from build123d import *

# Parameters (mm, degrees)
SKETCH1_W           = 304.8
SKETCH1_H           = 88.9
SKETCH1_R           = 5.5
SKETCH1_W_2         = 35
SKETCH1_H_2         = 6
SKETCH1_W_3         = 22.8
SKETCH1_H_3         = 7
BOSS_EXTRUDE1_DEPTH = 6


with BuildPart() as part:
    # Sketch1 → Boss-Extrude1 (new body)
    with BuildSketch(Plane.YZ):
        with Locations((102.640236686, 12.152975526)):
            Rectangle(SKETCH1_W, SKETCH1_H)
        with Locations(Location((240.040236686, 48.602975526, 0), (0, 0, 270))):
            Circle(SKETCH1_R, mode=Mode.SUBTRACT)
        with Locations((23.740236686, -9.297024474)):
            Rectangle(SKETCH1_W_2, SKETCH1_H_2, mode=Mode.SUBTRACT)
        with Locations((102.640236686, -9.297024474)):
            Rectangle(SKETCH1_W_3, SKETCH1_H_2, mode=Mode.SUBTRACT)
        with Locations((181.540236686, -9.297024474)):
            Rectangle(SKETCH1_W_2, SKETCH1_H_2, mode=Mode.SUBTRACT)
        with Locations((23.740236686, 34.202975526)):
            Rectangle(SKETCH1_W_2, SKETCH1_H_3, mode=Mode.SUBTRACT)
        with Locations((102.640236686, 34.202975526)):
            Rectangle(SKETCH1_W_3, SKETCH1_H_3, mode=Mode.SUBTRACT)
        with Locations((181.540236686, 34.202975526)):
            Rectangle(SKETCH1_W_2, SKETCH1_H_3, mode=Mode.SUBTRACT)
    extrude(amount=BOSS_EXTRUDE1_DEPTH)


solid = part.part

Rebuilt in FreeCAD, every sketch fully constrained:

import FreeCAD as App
import Part
import Sketcher
from FreeCAD import Vector
Q = App.Units.Quantity

doc = App.newDocument("Part")
body = doc.addObject("PartDesign::Body", "Body")

sketch1 = body.newObject("Sketcher::SketchObject", "Sketch")
sketch1.AttachmentSupport = (doc.getObject("YZ_Plane"), [""])
sketch1.MapMode = "FlatFace"
sketch1.addGeometry(Part.LineSegment(Vector(-49.759763, 56.602976, 0), Vector(-49.759763, -32.297024, 0)), False)
sketch1.addGeometry(Part.LineSegment(Vector(-49.759763, -32.297024, 0), Vector(255.040237, -32.297024, 0)), False)
sketch1.addGeometry(Part.LineSegment(Vector(255.040237, -32.297024, 0), Vector(255.040237, 56.602976, 0)), False)
sketch1.addGeometry(Part.LineSegment(Vector(255.040237, 56.602976, 0), Vector(-49.759763, 56.602976, 0)), False)
sketch1.addGeometry(Part.LineSegment(Vector(41.240237, -12.297024, 0), Vector(6.240237, -12.297024, 0)), False)
sketch1.addGeometry(Part.LineSegment(Vector(6.240237, -12.297024, 0), Vector(6.240237, -6.297024, 0)), False)
sketch1.addGeometry(Part.LineSegment(Vector(6.240237, -6.297024, 0), Vector(41.240237, -6.297024, 0)), False)
sketch1.addGeometry(Part.LineSegment(Vector(41.240237, -6.297024, 0), Vector(41.240237, -12.297024, 0)), False)
sketch1.addGeometry(Part.LineSegment(Vector(114.040237, -12.297024, 0), Vector(91.240237, -12.297024, 0)), False)
sketch1.addGeometry(Part.LineSegment(Vector(91.240237, -12.297024, 0), Vector(91.240237, -6.297024, 0)), False)
sketch1.addGeometry(Part.LineSegment(Vector(91.240237, -6.297024, 0), Vector(114.040237, -6.297024, 0)), False)
sketch1.addGeometry(Part.LineSegment(Vector(114.040237, -6.297024, 0), Vector(114.040237, -12.297024, 0)), False)
sketch1.addGeometry(Part.LineSegment(Vector(199.040237, -12.297024, 0), Vector(164.040237, -12.297024, 0)), False)
sketch1.addGeometry(Part.LineSegment(Vector(164.040237, -12.297024, 0), Vector(164.040237, -6.297024, 0)), False)
sketch1.addGeometry(Part.LineSegment(Vector(164.040237, -6.297024, 0), Vector(199.040237, -6.297024, 0)), False)
sketch1.addGeometry(Part.LineSegment(Vector(199.040237, -6.297024, 0), Vector(199.040237, -12.297024, 0)), False)
sketch1.addGeometry(Part.LineSegment(Vector(41.240237, 30.702976, 0), Vector(6.240237, 30.702976, 0)), False)
sketch1.addGeometry(Part.LineSegment(Vector(6.240237, 30.702976, 0), Vector(6.240237, 37.702976, 0)), False)
sketch1.addGeometry(Part.LineSegment(Vector(6.240237, 37.702976, 0), Vector(41.240237, 37.702976, 0)), False)
sketch1.addGeometry(Part.LineSegment(Vector(41.240237, 37.702976, 0), Vector(41.240237, 30.702976, 0)), False)
sketch1.addGeometry(Part.LineSegment(Vector(114.040237, 30.702976, 0), Vector(91.240237, 30.702976, 0)), False)
sketch1.addGeometry(Part.LineSegment(Vector(91.240237, 30.702976, 0), Vector(91.240237, 37.702976, 0)), False)
sketch1.addGeometry(Part.LineSegment(Vector(91.240237, 37.702976, 0), Vector(114.040237, 37.702976, 0)), False)
sketch1.addGeometry(Part.LineSegment(Vector(114.040237, 37.702976, 0), Vector(114.040237, 30.702976, 0)), False)
sketch1.addGeometry(Part.LineSegment(Vector(199.040237, 30.702976, 0), Vector(164.040237, 30.702976, 0)), False)
sketch1.addGeometry(Part.LineSegment(Vector(164.040237, 30.702976, 0), Vector(164.040237, 37.702976, 0)), False)
sketch1.addGeometry(Part.LineSegment(Vector(164.040237, 37.702976, 0), Vector(199.040237, 37.702976, 0)), False)
sketch1.addGeometry(Part.LineSegment(Vector(199.040237, 37.702976, 0), Vector(199.040237, 30.702976, 0)), False)
sketch1.addGeometry(Part.Circle(Vector(240.040237, 48.602976, 0), Vector(0, 0, 1), 5.5), False)
sketch1.addConstraint(Sketcher.Constraint("Coincident", 0, 2, 1, 1))
sketch1.addConstraint(Sketcher.Constraint("Coincident", 1, 2, 2, 1))
sketch1.addConstraint(Sketcher.Constraint("Coincident", 2, 2, 3, 1))
sketch1.addConstraint(Sketcher.Constraint("Coincident", 3, 2, 0, 1))
sketch1.addConstraint(Sketcher.Constraint("Coincident", 4, 2, 5, 1))
sketch1.addConstraint(Sketcher.Constraint("Coincident", 5, 2, 6, 1))
sketch1.addConstraint(Sketcher.Constraint("Coincident", 6, 2, 7, 1))
sketch1.addConstraint(Sketcher.Constraint("Coincident", 7, 2, 4, 1))
sketch1.addConstraint(Sketcher.Constraint("Coincident", 8, 2, 9, 1))
sketch1.addConstraint(Sketcher.Constraint("Coincident", 9, 2, 10, 1))
sketch1.addConstraint(Sketcher.Constraint("Coincident", 10, 2, 11, 1))
sketch1.addConstraint(Sketcher.Constraint("Coincident", 11, 2, 8, 1))
sketch1.addConstraint(Sketcher.Constraint("Coincident", 12, 2, 13, 1))
sketch1.addConstraint(Sketcher.Constraint("Coincident", 13, 2, 14, 1))
sketch1.addConstraint(Sketcher.Constraint("Coincident", 14, 2, 15, 1))
sketch1.addConstraint(Sketcher.Constraint("Coincident", 15, 2, 12, 1))
sketch1.addConstraint(Sketcher.Constraint("Coincident", 16, 2, 17, 1))
sketch1.addConstraint(Sketcher.Constraint("Coincident", 17, 2, 18, 1))
sketch1.addConstraint(Sketcher.Constraint("Coincident", 18, 2, 19, 1))
sketch1.addConstraint(Sketcher.Constraint("Coincident", 19, 2, 16, 1))
sketch1.addConstraint(Sketcher.Constraint("Coincident", 20, 2, 21, 1))
sketch1.addConstraint(Sketcher.Constraint("Coincident", 21, 2, 22, 1))
sketch1.addConstraint(Sketcher.Constraint("Coincident", 22, 2, 23, 1))
sketch1.addConstraint(Sketcher.Constraint("Coincident", 23, 2, 20, 1))
sketch1.addConstraint(Sketcher.Constraint("Coincident", 24, 2, 25, 1))
sketch1.addConstraint(Sketcher.Constraint("Coincident", 25, 2, 26, 1))
sketch1.addConstraint(Sketcher.Constraint("Coincident", 26, 2, 27, 1))
sketch1.addConstraint(Sketcher.Constraint("Coincident", 27, 2, 24, 1))
sketch1.addConstraint(Sketcher.Constraint("Vertical", 0))
sketch1.addConstraint(Sketcher.Constraint("Horizontal", 1))
sketch1.addConstraint(Sketcher.Constraint("Vertical", 2))
sketch1.addConstraint(Sketcher.Constraint("Horizontal", 3))
sketch1.addConstraint(Sketcher.Constraint("Horizontal", 4))
sketch1.addConstraint(Sketcher.Constraint("Vertical", 5))
sketch1.addConstraint(Sketcher.Constraint("Horizontal", 6))
sketch1.addConstraint(Sketcher.Constraint("Vertical", 7))
sketch1.addConstraint(Sketcher.Constraint("Horizontal", 8))
sketch1.addConstraint(Sketcher.Constraint("Vertical", 9))
sketch1.addConstraint(Sketcher.Constraint("Horizontal", 10))
sketch1.addConstraint(Sketcher.Constraint("Vertical", 11))
sketch1.addConstraint(Sketcher.Constraint("Horizontal", 12))
sketch1.addConstraint(Sketcher.Constraint("Vertical", 13))
sketch1.addConstraint(Sketcher.Constraint("Horizontal", 14))
sketch1.addConstraint(Sketcher.Constraint("Vertical", 15))
sketch1.addConstraint(Sketcher.Constraint("Horizontal", 16))
sketch1.addConstraint(Sketcher.Constraint("Vertical", 17))
sketch1.addConstraint(Sketcher.Constraint("Horizontal", 18))
sketch1.addConstraint(Sketcher.Constraint("Vertical", 19))
sketch1.addConstraint(Sketcher.Constraint("Horizontal", 20))
sketch1.addConstraint(Sketcher.Constraint("Vertical", 21))
sketch1.addConstraint(Sketcher.Constraint("Horizontal", 22))
sketch1.addConstraint(Sketcher.Constraint("Vertical", 23))
sketch1.addConstraint(Sketcher.Constraint("Horizontal", 24))
sketch1.addConstraint(Sketcher.Constraint("Vertical", 25))
sketch1.addConstraint(Sketcher.Constraint("Horizontal", 26))
sketch1.addConstraint(Sketcher.Constraint("Vertical", 27))
sketch1.addConstraint(Sketcher.Constraint("Horizontal", 7, 2, 8, 2))
sketch1.addConstraint(Sketcher.Constraint("Horizontal", 6, 2, 9, 2))
sketch1.addConstraint(Sketcher.Constraint("Horizontal", 11, 2, 12, 2))
sketch1.addConstraint(Sketcher.Constraint("Horizontal", 10, 2, 13, 2))
sketch1.addConstraint(Sketcher.Constraint("Horizontal", 19, 2, 20, 2))
sketch1.addConstraint(Sketcher.Constraint("Horizontal", 18, 2, 21, 2))
sketch1.addConstraint(Sketcher.Constraint("Horizontal", 23, 2, 24, 2))
sketch1.addConstraint(Sketcher.Constraint("Horizontal", 22, 2, 25, 2))
sketch1.addConstraint(Sketcher.Constraint("Vertical", 5, 2, 16, 2))
sketch1.addConstraint(Sketcher.Constraint("Vertical", 7, 2, 18, 2))
sketch1.addConstraint(Sketcher.Constraint("Vertical", 9, 2, 20, 2))
sketch1.addConstraint(Sketcher.Constraint("Vertical", 11, 2, 22, 2))
sketch1.addConstraint(Sketcher.Constraint("Vertical", 13, 2, 24, 2))
sketch1.addConstraint(Sketcher.Constraint("Vertical", 15, 2, 26, 2))
sketch1.addConstraint(Sketcher.Constraint("Equal", 6, 12))
sketch1.addConstraint(Sketcher.Constraint("Diameter", 28, Q("11 mm")))
sketch1.addConstraint(Sketcher.Constraint("DistanceX", 4, 2, 4, 1, Q("35 mm")))
sketch1.addConstraint(Sketcher.Constraint("DistanceY", 5, 1, 5, 2, Q("6 mm")))
sketch1.addConstraint(Sketcher.Constraint("DistanceY", 17, 1, 17, 2, Q("7 mm")))
sketch1.addConstraint(Sketcher.Constraint("DistanceX", 1, 1, 1, 2, Q("304.8 mm")))
sketch1.addConstraint(Sketcher.Constraint("DistanceX", 8, 2, 8, 1, Q("22.8 mm")))
sketch1.addConstraint(Sketcher.Constraint("DistanceY", 0, 2, 0, 1, Q("88.9 mm")))
sketch1.addConstraint(Sketcher.Constraint("DistanceX", 28, 3, 1, 2, Q("15 mm")))
sketch1.addConstraint(Sketcher.Constraint("DistanceY", 28, 3, 2, 2, Q("8 mm")))
sketch1.addConstraint(Sketcher.Constraint("DistanceX", 0, 2, 4, 2, Q("56 mm")))
sketch1.addConstraint(Sketcher.Constraint("DistanceY", 0, 2, 4, 2, Q("20 mm")))
sketch1.addConstraint(Sketcher.Constraint("DistanceX", 7, 2, 8, 2, Q("50 mm")))
sketch1.addConstraint(Sketcher.Constraint("DistanceX", 11, 2, 12, 2, Q("50 mm")))
sketch1.addConstraint(Sketcher.Constraint("DistanceY", 5, 2, 16, 2, Q("37 mm")))
sketch1.addConstraint(Sketcher.Constraint("DistanceX", -1, 1, 28, 3, Q("240.040237 mm")))
sketch1.addConstraint(Sketcher.Constraint("DistanceY", -1, 1, 28, 3, Q("48.602976 mm")))
pad1 = body.newObject("PartDesign::Pad", "Pad")
pad1.Profile = sketch1
pad1.Length = 6

doc.recompute()
